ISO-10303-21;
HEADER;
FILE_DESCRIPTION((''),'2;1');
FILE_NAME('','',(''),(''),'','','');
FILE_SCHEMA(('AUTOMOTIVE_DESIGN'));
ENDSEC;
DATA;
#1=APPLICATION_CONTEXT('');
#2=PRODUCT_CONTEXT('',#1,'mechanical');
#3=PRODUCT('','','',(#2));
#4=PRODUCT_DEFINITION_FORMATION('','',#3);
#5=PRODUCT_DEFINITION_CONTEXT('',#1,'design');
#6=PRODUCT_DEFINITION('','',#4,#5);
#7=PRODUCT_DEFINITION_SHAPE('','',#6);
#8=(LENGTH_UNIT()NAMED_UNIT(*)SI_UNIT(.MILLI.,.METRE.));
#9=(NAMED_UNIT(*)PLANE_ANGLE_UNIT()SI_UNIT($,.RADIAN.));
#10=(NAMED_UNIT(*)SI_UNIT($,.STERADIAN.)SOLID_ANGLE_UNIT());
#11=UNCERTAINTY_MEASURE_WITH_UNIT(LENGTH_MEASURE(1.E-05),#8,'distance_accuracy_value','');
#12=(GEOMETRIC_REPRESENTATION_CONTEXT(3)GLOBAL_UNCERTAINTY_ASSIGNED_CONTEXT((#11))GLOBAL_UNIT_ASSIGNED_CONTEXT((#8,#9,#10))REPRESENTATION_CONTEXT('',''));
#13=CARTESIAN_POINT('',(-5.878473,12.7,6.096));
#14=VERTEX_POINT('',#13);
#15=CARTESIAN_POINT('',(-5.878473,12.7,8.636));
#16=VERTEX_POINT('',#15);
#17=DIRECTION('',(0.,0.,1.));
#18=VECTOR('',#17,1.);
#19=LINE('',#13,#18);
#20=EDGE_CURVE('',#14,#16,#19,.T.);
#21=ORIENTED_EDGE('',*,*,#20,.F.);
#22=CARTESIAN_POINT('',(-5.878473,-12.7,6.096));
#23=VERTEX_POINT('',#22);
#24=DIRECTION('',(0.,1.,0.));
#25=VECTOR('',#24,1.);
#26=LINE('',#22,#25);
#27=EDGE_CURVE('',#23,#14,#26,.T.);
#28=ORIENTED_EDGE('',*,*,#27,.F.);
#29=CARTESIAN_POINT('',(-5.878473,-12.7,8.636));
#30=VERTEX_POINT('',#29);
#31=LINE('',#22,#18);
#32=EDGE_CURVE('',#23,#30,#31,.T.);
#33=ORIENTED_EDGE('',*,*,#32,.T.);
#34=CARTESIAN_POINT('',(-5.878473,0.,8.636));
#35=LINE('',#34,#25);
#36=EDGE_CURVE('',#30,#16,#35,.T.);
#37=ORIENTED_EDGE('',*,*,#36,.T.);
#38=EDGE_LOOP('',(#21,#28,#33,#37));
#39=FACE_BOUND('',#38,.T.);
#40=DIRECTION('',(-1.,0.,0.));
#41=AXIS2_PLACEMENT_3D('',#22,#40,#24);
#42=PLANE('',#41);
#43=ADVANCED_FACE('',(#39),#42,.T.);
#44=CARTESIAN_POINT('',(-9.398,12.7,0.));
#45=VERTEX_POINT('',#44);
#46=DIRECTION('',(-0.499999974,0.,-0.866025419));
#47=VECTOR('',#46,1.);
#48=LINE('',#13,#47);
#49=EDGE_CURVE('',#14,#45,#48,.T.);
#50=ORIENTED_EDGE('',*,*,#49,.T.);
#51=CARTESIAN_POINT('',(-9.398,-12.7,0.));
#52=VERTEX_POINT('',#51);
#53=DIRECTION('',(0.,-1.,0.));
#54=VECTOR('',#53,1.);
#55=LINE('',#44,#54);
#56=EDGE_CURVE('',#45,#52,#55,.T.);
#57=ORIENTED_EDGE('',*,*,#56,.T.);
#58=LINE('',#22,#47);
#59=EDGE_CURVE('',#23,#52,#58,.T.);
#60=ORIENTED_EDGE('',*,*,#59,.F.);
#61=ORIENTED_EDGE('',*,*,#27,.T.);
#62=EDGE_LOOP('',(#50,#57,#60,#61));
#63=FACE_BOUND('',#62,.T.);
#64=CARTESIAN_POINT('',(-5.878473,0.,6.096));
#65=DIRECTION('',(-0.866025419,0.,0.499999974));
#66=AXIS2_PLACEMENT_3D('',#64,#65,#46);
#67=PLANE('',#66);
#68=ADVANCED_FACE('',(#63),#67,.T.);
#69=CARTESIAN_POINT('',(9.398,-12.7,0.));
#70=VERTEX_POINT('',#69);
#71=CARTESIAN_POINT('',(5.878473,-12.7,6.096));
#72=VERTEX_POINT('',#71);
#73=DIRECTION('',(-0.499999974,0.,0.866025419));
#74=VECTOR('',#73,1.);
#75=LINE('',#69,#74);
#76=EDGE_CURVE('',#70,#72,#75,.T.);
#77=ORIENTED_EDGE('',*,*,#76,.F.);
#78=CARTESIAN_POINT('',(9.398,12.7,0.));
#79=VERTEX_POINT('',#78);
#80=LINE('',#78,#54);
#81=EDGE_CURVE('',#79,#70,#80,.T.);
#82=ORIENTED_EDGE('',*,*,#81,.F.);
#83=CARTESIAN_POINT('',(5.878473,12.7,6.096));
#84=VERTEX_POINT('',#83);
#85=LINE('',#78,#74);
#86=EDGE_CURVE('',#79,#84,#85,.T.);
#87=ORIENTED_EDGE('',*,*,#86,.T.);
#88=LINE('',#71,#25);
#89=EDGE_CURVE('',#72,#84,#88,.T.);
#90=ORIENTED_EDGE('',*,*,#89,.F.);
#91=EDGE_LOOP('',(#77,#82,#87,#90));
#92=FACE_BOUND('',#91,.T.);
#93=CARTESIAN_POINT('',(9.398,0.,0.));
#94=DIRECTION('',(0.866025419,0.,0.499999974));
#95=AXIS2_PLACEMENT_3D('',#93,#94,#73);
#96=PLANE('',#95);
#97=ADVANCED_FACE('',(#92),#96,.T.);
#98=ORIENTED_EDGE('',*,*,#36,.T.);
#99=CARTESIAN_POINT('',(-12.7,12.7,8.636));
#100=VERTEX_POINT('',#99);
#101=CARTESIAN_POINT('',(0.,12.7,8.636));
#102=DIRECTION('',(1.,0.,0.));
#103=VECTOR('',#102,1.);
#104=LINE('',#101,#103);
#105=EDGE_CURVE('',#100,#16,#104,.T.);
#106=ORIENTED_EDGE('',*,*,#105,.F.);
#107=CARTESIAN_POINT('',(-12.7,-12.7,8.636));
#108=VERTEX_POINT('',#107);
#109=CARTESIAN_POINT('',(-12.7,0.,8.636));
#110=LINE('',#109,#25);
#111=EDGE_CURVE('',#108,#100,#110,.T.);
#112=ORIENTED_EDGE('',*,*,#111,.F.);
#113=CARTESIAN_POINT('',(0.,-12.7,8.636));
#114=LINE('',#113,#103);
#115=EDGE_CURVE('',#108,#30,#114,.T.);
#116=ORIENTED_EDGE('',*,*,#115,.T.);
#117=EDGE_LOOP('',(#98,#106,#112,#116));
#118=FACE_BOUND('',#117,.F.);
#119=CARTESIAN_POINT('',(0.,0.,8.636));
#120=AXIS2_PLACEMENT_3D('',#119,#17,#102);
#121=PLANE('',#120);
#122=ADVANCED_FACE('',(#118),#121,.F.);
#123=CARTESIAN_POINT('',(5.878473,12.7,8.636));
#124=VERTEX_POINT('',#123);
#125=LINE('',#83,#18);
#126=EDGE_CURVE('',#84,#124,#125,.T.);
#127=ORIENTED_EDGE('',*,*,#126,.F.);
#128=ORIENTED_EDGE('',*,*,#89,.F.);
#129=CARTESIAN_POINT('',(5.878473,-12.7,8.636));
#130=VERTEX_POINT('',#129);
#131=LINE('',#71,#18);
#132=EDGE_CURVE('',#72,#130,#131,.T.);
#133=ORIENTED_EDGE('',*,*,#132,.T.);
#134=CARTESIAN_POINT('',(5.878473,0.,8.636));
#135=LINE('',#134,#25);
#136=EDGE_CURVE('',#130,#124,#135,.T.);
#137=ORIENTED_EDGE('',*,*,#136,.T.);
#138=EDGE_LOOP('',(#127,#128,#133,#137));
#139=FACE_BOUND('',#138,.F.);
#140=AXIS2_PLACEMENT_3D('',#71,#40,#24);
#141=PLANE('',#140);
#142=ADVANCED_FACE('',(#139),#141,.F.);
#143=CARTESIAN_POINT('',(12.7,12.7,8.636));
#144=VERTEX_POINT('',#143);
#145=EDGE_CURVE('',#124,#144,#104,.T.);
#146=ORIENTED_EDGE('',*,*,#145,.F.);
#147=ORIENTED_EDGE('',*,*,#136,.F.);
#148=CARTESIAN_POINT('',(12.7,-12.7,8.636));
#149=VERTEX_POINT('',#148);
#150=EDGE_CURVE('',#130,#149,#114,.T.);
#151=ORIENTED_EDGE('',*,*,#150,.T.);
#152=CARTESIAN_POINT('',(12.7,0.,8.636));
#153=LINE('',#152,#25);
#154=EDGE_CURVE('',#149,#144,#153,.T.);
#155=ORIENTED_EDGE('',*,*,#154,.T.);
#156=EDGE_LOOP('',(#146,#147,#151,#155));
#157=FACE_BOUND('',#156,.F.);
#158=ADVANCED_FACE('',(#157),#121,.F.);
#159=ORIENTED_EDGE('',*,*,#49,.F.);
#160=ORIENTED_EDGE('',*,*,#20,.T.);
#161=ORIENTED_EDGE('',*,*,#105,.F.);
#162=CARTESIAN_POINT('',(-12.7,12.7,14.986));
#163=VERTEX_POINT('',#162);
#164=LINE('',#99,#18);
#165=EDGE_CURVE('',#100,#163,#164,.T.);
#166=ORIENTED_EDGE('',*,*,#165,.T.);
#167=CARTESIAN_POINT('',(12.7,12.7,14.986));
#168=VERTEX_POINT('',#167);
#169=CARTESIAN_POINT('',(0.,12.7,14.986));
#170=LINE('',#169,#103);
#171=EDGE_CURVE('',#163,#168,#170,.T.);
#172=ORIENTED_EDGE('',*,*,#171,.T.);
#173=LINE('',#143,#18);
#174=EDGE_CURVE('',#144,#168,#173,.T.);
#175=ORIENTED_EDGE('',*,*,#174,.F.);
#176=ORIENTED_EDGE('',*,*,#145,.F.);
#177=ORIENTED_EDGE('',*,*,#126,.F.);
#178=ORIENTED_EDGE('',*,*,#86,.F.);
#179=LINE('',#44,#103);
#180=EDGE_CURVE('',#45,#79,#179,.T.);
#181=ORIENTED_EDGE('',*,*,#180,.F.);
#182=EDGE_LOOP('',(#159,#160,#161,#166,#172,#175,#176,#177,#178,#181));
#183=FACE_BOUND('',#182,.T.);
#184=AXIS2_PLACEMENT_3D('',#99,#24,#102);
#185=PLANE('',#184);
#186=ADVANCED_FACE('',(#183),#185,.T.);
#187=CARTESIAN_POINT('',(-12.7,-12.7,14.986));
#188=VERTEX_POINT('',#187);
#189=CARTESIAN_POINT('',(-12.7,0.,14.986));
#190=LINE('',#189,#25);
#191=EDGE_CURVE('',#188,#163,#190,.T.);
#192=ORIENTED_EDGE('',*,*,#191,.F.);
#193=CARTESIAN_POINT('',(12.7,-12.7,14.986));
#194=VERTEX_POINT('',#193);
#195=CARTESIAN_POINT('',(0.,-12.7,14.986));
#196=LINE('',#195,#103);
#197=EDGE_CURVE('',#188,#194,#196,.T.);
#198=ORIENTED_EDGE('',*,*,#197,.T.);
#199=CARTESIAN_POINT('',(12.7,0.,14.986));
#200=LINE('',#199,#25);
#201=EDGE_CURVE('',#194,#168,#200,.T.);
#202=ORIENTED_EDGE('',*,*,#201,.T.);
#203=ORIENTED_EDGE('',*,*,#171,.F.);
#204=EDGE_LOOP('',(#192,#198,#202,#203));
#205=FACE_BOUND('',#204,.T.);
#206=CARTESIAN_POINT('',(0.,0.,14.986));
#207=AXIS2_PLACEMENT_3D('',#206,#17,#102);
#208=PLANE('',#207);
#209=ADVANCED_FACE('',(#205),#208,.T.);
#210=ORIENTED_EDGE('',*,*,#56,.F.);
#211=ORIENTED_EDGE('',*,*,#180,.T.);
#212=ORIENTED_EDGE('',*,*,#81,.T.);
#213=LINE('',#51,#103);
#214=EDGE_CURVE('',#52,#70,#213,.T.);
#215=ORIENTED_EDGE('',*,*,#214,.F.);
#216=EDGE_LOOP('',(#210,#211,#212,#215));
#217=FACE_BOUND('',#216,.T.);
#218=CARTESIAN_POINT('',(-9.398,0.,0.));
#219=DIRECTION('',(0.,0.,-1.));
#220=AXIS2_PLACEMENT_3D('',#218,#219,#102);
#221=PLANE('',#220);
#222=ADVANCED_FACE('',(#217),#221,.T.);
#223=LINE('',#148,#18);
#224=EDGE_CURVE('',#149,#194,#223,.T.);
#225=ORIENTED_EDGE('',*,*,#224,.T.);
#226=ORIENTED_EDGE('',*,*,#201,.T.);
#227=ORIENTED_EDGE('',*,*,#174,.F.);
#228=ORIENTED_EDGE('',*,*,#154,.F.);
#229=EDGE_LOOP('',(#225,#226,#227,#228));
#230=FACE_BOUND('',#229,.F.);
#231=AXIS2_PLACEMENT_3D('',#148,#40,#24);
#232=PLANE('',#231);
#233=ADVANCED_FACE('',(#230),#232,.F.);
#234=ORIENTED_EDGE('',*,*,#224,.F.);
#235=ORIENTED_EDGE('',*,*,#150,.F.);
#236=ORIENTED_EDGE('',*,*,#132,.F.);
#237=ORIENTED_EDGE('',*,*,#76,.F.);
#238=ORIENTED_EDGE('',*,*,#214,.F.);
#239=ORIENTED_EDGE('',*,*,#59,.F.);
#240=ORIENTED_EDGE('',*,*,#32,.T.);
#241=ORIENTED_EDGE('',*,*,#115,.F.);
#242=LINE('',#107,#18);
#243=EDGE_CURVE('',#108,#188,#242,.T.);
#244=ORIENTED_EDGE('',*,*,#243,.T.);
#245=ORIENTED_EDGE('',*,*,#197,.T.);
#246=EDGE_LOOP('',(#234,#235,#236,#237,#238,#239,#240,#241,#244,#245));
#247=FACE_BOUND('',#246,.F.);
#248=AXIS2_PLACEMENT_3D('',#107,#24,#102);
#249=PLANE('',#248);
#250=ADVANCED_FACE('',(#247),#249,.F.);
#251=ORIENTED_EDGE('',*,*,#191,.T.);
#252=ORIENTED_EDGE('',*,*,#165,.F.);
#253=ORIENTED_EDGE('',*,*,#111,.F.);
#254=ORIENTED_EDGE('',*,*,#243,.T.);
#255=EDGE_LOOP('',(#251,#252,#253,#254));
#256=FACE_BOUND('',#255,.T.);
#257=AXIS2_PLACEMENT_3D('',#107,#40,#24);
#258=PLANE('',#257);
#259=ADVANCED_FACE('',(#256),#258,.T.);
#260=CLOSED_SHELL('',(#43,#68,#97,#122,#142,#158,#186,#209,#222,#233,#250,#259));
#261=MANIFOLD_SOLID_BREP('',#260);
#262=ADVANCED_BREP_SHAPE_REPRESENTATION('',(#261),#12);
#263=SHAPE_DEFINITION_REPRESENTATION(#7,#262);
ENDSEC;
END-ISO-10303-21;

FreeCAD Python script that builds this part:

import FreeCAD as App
import Part
import Sketcher
Q = App.Units.Quantity


def add_polygon(sketch, points):
    """Adds a closed chain of lines whose ends are joined by coincident constraints."""
    first, n = sketch.GeometryCount, len(points)
    for a, b in zip(points, points[1:] + points[:1]):
        sketch.addGeometry(Part.LineSegment(App.Vector(*a, 0), App.Vector(*b, 0)), False)
    for i in range(n):
        sketch.addConstraint(Sketcher.Constraint("Coincident", first + i, 2, first + (i + 1) % n, 1))

doc = App.newDocument("Part")
params = doc.addObject("Spreadsheet::Sheet", "Params")
for row, (alias, value) in enumerate([
    ("sketch1_width", "0.74 in"),
    ("pad1_length", "0.5 in"),
    ("pad1_length2", "0.5 in"),
    ("sketch2_height", "1 in"),
    ("pad2_length", "0.1 in"),
    ("sketch3_width", "1 in"),
    ("pad3_length", "0.25 in"),
], start=1):
    params.set(f"A{row}", alias)
    params.set(f"B{row}", "=" + value)
    params.setAlias(f"B{row}", alias)

body = doc.addObject("PartDesign::Body", "Body")

# Sketch on XZ plane
sketch1 = body.newObject("Sketcher::SketchObject", "Sketch")
sketch1.AttachmentSupport = (doc.getObject("XZ_Plane"), [""])
sketch1.MapMode = "FlatFace"
add_polygon(sketch1, [(-6, 6), (-9, 0), (9, 0), (6, 6)])  # lines 0-3
sketch1.addConstraint([
    Sketcher.Constraint("Horizontal", 1),
    Sketcher.Constraint("Horizontal", 3),
    Sketcher.Constraint("Symmetric", 0, 2, 1, 2, -1, 1),
    Sketcher.Constraint("Equal", 0, 2),
    Sketcher.Constraint("Angle", 0, Q("-119.999998 deg")),
    Sketcher.Constraint("DistanceX", 1, 1, 1, 2, Q("0.74 in")),
    Sketcher.Constraint("DistanceY", -1, 1, 2, 2, Q("0.24 in")),
])
sketch1.setExpression("Constraints[9]", "Params.sketch1_width")
pad1 = body.newObject("PartDesign::Pad", "Pad")
pad1.Profile = sketch1
pad1.Type = "TwoLengths"
pad1.setExpression("Length", "Params.pad1_length")
pad1.setExpression("Length2", "Params.pad1_length2")

# Sketch on XY plane
sketch2 = body.newObject("Sketcher::SketchObject", "Sketch001")
sketch2.AttachmentSupport = (doc.getObject("XY_Plane"), [""])
sketch2.MapMode = "FlatFace"
sketch2.AttachmentOffset = App.Placement(App.Vector(0, 0, 0.24 * 25.4), App.Rotation())
add_polygon(sketch2, [(-6, 13), (-6, -13), (6, -13), (6, 13)])  # lines 0-3
sketch2.addConstraint([
    Sketcher.Constraint("Vertical", 0),
    Sketcher.Constraint("Horizontal", 1),
    Sketcher.Constraint("Vertical", 2),
    Sketcher.Constraint("Horizontal", 3),
    Sketcher.Constraint("Symmetric", 0, 2, 2, 2, -1, 1),
    Sketcher.Constraint("DistanceY", 0, 2, 0, 1, Q("1 in")),
    Sketcher.Constraint("DistanceX", 1, 1, 1, 2, Q("11.756946 mm")),
])
sketch2.setExpression("Constraints[9]", "Params.sketch2_height")
pad2 = body.newObject("PartDesign::Pad", "Pad001")
pad2.Profile = sketch2
pad2.setExpression("Length", "Params.pad2_length")

# Sketch on XY plane
sketch3 = body.newObject("Sketcher::SketchObject", "Sketch002")
sketch3.AttachmentSupport = (doc.getObject("XY_Plane"), [""])
sketch3.MapMode = "FlatFace"
sketch3.AttachmentOffset = App.Placement(App.Vector(0, 0, 0.34 * 25.4), App.Rotation())
add_polygon(sketch3, [(-13, 13), (-13, -13), (13, -13), (13, 13)])  # lines 0-3
sketch3.addConstraint([
    Sketcher.Constraint("Vertical", 0),
    Sketcher.Constraint("Horizontal", 1),
    Sketcher.Constraint("Vertical", 2),
    Sketcher.Constraint("Horizontal", 3),
    Sketcher.Constraint("Symmetric", 0, 2, 2, 2, -1, 1),
    Sketcher.Constraint("Equal", 3, 0),
    Sketcher.Constraint("DistanceX", 1, 1, 1, 2, Q("1 in")),
])
sketch3.setExpression("Constraints[10]", "Params.sketch3_width")
pad3 = body.newObject("PartDesign::Pad", "Pad002")
pad3.Profile = sketch3
pad3.setExpression("Length", "Params.pad3_length")

doc.recompute()
